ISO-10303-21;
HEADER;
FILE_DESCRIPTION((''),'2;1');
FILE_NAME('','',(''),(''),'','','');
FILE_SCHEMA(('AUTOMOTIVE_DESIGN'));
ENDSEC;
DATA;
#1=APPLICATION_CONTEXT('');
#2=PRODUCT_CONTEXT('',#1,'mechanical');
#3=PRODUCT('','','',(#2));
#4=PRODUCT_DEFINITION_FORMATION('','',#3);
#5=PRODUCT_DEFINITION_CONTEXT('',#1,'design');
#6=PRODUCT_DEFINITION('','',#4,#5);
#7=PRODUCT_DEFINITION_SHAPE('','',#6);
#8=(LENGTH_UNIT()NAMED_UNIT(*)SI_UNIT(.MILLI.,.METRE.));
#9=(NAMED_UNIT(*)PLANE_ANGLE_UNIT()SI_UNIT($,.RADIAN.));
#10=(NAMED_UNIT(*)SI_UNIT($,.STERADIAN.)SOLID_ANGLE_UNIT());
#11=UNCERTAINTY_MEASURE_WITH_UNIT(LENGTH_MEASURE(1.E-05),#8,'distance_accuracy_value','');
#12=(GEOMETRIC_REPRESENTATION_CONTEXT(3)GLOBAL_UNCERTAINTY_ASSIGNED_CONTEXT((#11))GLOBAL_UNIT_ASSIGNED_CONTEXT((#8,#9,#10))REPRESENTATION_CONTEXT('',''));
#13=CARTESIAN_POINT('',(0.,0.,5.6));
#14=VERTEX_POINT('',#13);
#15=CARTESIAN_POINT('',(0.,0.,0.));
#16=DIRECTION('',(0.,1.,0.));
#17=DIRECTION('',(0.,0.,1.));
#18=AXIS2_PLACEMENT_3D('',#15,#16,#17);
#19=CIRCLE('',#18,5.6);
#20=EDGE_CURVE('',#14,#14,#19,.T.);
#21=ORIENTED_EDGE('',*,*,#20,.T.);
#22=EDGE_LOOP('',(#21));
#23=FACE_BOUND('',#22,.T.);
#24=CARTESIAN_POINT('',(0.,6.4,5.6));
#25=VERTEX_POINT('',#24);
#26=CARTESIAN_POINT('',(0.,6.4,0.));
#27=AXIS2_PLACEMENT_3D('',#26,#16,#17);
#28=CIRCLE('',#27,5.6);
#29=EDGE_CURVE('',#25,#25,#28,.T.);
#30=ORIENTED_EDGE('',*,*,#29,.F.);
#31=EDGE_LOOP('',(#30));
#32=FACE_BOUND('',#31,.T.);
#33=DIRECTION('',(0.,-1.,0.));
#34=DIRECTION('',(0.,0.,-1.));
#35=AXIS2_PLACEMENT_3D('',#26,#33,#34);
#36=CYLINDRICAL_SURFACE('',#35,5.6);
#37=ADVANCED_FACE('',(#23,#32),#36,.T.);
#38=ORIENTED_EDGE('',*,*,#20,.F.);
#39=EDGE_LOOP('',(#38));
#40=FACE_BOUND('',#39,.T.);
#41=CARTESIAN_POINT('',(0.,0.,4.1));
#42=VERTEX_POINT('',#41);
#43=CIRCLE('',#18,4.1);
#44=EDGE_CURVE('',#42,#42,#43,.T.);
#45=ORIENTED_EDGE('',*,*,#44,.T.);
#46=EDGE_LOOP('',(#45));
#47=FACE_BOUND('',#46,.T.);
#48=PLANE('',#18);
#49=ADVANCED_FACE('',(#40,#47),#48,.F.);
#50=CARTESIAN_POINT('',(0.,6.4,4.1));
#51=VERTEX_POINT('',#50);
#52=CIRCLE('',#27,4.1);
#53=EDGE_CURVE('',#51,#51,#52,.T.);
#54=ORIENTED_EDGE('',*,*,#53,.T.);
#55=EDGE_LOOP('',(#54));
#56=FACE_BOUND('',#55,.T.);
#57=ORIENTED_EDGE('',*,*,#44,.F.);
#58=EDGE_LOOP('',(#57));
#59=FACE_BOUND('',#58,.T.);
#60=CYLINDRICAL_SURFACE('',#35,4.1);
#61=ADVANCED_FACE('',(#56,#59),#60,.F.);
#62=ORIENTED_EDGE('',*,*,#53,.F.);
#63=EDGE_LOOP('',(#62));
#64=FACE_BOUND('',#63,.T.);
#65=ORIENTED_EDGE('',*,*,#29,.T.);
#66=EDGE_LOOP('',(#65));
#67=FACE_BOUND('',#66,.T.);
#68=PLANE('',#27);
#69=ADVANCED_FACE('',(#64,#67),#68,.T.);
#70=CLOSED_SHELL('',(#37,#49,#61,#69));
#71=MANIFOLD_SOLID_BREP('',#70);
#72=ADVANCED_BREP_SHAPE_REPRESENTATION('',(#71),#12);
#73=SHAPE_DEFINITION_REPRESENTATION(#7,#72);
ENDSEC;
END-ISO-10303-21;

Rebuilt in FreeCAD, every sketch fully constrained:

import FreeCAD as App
import Part
import Sketcher
Q = App.Units.Quantity

doc = App.newDocument("Part")
body = doc.addObject("PartDesign::Body", "Body")

sketch1 = body.newObject("Sketcher::SketchObject", "Sketch")
sketch1.AttachmentSupport = (doc.getObject("XZ_Plane"), [""])
sketch1.MapMode = "FlatFace"
sketch1.addGeometry(Part.Circle(App.Vector(0, 0, 0), App.Vector(0, 0, 1), 5.6), False)
sketch1.addGeometry(Part.Circle(App.Vector(0, 0, 0), App.Vector(0, 0, 1), 4.1), False)
sketch1.addConstraint(Sketcher.Constraint("Coincident", 0, 3, -1, 1))
sketch1.addConstraint(Sketcher.Constraint("Coincident", 1, 3, -1, 1))
sketch1.addConstraint(Sketcher.Constraint("Diameter", 0, Q("11.2 mm")))
sketch1.addConstraint(Sketcher.Constraint("Diameter", 1, Q("8.2 mm")))
pad1 = body.newObject("PartDesign::Pad", "Pad")
pad1.Profile = sketch1
pad1.Length = 6.4
pad1.Reversed = True

doc.recompute()
